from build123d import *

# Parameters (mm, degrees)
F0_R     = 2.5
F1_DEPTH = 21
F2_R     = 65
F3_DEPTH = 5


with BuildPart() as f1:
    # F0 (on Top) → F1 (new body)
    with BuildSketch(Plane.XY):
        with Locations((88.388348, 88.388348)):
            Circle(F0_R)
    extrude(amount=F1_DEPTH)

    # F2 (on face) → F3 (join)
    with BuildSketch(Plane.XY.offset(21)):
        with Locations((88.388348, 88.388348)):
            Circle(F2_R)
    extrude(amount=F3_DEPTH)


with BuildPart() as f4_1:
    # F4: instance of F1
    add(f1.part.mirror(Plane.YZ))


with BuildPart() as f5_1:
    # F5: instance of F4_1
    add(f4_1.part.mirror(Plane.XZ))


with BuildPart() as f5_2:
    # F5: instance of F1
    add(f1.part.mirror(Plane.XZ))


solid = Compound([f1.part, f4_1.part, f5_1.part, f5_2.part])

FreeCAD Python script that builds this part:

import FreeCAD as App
import Part
import Sketcher
Q = App.Units.Quantity

doc = App.newDocument("Part")
body = doc.addObject("PartDesign::Body", "Body")

# Sketch on XY plane
sketch1 = body.newObject("Sketcher::SketchObject", "Sketch")
sketch1.AttachmentSupport = (doc.getObject("XY_Plane"), [""])
sketch1.MapMode = "FlatFace"
sketch1.addGeometry(Part.Circle(App.Vector(88.4, 88.4, 0), App.Vector(0, 0, 1), 2.5), False)
sketch1.addConstraint(Sketcher.Constraint("Diameter", 0, Q("5 mm")))
sketch1.addConstraint(Sketcher.Constraint("DistanceX", -1, 1, 0, 3, Q("88.388348 mm")))
sketch1.addConstraint(Sketcher.Constraint("DistanceY", -1, 1, 0, 3, Q("88.388348 mm")))
pad1 = body.newObject("PartDesign::Pad", "Pad")
pad1.Profile = sketch1
pad1.Length = 21

# Sketch on XY plane
sketch2 = body.newObject("Sketcher::SketchObject", "Sketch001")
sketch2.AttachmentSupport = (doc.getObject("XY_Plane"), [""])
sketch2.MapMode = "FlatFace"
sketch2.AttachmentOffset = App.Placement(App.Vector(0, 0, 21), App.Rotation())
sketch2.addGeometry(Part.Circle(App.Vector(88, 88, 0), App.Vector(0, 0, 1), 65), False)
sketch2.addConstraint(Sketcher.Constraint("Diameter", 0, Q("130 mm")))
sketch2.addConstraint(Sketcher.Constraint("DistanceX", -1, 1, 0, 3, Q("88.388348 mm")))
sketch2.addConstraint(Sketcher.Constraint("DistanceY", -1, 1, 0, 3, Q("88.388348 mm")))
pad2 = body.newObject("PartDesign::Pad", "Pad001")
pad2.Profile = sketch2
pad2.Length = 5
body2 = doc.addObject("PartDesign::Body", "Body001")
doc.recompute()

mirroring = doc.addObject("Part::Mirroring", "Mirroring")
mirroring.Source = body
mirroring.Base = App.Vector(0, 0, 0)
mirroring.Normal = App.Vector(1, 0, 0)
body2.BaseFeature = mirroring
doc.recompute()
body3 = doc.addObject("PartDesign::Body", "Body002")
doc.recompute()

mirroring2 = doc.addObject("Part::Mirroring", "Mirroring001")
mirroring2.Source = body2
mirroring2.Base = App.Vector(0, 0, 0)
mirroring2.Normal = App.Vector(0, -1, 0)
body3.BaseFeature = mirroring2
doc.recompute()
body4 = doc.addObject("PartDesign::Body", "Body003")
doc.recompute()

mirroring3 = doc.addObject("Part::Mirroring", "Mirroring002")
mirroring3.Source = body
mirroring3.Base = App.Vector(0, 0, 0)
mirroring3.Normal = App.Vector(0, -1, 0)
body4.BaseFeature = mirroring3
doc.recompute()
mirroring.Visibility = False
mirroring2.Visibility = False
mirroring3.Visibility = False

doc.recompute()
